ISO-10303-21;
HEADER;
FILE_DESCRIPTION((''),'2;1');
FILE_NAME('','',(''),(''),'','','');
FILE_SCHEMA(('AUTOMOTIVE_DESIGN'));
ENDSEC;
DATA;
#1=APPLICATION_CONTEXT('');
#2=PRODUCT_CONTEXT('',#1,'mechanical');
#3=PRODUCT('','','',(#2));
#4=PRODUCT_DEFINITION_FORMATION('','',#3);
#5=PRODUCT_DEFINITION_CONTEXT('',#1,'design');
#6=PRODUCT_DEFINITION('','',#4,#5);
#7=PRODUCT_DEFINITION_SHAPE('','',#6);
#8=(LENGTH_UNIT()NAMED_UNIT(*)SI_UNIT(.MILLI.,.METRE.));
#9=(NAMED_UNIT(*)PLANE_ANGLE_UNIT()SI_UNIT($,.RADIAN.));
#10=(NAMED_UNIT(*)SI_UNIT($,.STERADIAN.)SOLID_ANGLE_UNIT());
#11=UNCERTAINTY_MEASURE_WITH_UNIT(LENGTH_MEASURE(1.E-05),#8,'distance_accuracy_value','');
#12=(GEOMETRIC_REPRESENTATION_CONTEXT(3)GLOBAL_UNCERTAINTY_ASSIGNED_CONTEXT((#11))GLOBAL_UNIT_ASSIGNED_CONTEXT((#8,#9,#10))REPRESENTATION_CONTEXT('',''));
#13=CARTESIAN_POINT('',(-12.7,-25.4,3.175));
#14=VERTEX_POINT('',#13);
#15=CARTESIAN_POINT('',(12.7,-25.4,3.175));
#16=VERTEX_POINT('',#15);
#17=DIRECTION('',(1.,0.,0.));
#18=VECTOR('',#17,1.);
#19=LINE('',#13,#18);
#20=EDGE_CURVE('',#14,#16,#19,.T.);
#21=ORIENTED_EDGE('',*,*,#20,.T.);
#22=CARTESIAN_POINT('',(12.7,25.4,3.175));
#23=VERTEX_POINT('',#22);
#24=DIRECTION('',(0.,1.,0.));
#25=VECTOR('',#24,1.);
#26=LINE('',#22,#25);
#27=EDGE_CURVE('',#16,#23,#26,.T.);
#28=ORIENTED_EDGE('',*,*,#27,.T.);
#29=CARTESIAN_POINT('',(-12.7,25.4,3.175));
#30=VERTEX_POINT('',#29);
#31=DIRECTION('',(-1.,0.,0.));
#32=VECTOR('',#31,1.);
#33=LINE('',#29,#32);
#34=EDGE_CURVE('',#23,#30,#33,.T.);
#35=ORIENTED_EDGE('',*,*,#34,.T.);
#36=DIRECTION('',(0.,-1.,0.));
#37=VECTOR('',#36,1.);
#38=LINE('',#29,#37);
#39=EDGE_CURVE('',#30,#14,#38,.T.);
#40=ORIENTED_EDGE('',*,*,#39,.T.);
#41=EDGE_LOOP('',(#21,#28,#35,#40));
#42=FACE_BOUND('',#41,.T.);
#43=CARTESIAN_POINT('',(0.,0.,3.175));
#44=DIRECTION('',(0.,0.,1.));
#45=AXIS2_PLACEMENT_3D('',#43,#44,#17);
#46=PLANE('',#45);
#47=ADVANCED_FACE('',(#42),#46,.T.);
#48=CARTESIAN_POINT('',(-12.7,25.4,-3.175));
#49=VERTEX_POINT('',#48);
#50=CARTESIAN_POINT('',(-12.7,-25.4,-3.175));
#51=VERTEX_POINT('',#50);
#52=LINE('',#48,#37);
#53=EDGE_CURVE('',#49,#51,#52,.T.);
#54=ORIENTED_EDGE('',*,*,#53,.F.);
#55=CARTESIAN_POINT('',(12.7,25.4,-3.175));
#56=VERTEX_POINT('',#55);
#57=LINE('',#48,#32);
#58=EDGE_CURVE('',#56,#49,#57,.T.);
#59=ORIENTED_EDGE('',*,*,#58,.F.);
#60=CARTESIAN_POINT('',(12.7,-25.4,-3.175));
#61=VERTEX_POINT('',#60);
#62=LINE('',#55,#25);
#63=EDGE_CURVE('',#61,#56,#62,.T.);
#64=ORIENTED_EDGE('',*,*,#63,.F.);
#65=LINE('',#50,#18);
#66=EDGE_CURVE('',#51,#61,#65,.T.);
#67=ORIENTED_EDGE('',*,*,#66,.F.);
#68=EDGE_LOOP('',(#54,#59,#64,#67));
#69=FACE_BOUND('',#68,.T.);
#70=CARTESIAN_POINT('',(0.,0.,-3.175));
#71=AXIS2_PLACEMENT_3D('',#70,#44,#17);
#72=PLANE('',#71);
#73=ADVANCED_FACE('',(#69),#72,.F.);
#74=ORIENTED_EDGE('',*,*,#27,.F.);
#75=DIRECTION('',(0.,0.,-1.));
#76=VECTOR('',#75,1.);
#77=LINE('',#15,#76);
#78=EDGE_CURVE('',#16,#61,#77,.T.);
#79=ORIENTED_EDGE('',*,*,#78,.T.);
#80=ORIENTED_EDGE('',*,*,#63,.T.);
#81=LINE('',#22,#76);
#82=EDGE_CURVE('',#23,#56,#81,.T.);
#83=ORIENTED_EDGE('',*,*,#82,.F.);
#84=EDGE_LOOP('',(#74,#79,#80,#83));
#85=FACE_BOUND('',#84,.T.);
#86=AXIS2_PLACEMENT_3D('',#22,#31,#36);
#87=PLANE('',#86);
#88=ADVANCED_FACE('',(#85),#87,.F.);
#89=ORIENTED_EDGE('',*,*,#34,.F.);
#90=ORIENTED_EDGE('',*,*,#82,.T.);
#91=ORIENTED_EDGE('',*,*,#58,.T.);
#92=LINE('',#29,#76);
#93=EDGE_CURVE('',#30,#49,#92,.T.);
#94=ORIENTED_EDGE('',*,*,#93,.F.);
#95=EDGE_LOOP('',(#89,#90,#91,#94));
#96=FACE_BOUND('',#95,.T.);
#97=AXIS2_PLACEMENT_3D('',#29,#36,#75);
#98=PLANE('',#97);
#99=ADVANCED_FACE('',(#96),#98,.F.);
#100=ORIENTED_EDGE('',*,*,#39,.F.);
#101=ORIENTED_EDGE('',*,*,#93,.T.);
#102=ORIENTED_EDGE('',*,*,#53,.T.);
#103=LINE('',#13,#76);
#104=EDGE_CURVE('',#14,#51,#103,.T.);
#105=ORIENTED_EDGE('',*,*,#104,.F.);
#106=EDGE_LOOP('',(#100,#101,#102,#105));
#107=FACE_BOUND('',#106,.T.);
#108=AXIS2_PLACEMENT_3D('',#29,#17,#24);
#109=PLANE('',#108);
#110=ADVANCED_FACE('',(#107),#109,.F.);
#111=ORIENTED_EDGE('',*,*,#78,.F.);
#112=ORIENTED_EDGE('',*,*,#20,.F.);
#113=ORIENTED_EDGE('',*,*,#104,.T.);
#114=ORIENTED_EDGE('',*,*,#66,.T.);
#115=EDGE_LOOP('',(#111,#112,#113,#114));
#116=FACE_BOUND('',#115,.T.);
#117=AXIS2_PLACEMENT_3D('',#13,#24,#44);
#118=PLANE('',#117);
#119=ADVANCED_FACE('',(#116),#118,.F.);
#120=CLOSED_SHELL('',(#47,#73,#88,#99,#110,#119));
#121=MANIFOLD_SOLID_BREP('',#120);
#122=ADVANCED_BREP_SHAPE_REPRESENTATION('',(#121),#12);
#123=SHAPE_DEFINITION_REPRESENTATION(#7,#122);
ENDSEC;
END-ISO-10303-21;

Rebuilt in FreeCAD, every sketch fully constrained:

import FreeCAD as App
import Part
import Sketcher

V = App.Vector
Q = App.Units.Quantity


def add_polygon(sketch, points):
    """Adds a closed chain of lines whose ends are joined by coincident constraints."""
    first, n = sketch.GeometryCount, len(points)
    for a, b in zip(points, points[1:] + points[:1]):
        sketch.addGeometry(Part.LineSegment(App.Vector(*a, 0), App.Vector(*b, 0)), False)
    for i in range(n):
        sketch.addConstraint(Sketcher.Constraint("Coincident", first + i, 2, first + (i + 1) % n, 1))

doc = App.newDocument("Part")
body = doc.addObject("PartDesign::Body", "Body")

# Sketch on XY plane
sketch1 = doc.addObject("Sketcher::SketchObject", "Sketch")
body.addObject(sketch1)
sketch1.AttachmentSupport = (doc.XY_Plane, [""])
sketch1.MapMode = "FlatFace"
add_polygon(sketch1, [(-13, 25), (-13, -25), (13, -25), (13, 25)])  # lines 0-3
sketch1.addConstraint([
    Sketcher.Constraint("Vertical", 0),
    Sketcher.Constraint("Horizontal", 1),
    Sketcher.Constraint("Vertical", 2),
    Sketcher.Constraint("Horizontal", 3),
    Sketcher.Constraint("Symmetric", 0, 2, 2, 2, -1, 1),
    Sketcher.Constraint("DistanceX", 1, 1, 1, 2, Q("1 in")),
    Sketcher.Constraint("DistanceY", 0, 2, 0, 1, Q("2 in")),
])
pad1 = doc.addObject("PartDesign::Pad", "Pad")
body.addObject(pad1)
pad1.Profile = sketch1
pad1.Length = Q("0.25 in")
pad1.Midplane = True

doc.recompute()
